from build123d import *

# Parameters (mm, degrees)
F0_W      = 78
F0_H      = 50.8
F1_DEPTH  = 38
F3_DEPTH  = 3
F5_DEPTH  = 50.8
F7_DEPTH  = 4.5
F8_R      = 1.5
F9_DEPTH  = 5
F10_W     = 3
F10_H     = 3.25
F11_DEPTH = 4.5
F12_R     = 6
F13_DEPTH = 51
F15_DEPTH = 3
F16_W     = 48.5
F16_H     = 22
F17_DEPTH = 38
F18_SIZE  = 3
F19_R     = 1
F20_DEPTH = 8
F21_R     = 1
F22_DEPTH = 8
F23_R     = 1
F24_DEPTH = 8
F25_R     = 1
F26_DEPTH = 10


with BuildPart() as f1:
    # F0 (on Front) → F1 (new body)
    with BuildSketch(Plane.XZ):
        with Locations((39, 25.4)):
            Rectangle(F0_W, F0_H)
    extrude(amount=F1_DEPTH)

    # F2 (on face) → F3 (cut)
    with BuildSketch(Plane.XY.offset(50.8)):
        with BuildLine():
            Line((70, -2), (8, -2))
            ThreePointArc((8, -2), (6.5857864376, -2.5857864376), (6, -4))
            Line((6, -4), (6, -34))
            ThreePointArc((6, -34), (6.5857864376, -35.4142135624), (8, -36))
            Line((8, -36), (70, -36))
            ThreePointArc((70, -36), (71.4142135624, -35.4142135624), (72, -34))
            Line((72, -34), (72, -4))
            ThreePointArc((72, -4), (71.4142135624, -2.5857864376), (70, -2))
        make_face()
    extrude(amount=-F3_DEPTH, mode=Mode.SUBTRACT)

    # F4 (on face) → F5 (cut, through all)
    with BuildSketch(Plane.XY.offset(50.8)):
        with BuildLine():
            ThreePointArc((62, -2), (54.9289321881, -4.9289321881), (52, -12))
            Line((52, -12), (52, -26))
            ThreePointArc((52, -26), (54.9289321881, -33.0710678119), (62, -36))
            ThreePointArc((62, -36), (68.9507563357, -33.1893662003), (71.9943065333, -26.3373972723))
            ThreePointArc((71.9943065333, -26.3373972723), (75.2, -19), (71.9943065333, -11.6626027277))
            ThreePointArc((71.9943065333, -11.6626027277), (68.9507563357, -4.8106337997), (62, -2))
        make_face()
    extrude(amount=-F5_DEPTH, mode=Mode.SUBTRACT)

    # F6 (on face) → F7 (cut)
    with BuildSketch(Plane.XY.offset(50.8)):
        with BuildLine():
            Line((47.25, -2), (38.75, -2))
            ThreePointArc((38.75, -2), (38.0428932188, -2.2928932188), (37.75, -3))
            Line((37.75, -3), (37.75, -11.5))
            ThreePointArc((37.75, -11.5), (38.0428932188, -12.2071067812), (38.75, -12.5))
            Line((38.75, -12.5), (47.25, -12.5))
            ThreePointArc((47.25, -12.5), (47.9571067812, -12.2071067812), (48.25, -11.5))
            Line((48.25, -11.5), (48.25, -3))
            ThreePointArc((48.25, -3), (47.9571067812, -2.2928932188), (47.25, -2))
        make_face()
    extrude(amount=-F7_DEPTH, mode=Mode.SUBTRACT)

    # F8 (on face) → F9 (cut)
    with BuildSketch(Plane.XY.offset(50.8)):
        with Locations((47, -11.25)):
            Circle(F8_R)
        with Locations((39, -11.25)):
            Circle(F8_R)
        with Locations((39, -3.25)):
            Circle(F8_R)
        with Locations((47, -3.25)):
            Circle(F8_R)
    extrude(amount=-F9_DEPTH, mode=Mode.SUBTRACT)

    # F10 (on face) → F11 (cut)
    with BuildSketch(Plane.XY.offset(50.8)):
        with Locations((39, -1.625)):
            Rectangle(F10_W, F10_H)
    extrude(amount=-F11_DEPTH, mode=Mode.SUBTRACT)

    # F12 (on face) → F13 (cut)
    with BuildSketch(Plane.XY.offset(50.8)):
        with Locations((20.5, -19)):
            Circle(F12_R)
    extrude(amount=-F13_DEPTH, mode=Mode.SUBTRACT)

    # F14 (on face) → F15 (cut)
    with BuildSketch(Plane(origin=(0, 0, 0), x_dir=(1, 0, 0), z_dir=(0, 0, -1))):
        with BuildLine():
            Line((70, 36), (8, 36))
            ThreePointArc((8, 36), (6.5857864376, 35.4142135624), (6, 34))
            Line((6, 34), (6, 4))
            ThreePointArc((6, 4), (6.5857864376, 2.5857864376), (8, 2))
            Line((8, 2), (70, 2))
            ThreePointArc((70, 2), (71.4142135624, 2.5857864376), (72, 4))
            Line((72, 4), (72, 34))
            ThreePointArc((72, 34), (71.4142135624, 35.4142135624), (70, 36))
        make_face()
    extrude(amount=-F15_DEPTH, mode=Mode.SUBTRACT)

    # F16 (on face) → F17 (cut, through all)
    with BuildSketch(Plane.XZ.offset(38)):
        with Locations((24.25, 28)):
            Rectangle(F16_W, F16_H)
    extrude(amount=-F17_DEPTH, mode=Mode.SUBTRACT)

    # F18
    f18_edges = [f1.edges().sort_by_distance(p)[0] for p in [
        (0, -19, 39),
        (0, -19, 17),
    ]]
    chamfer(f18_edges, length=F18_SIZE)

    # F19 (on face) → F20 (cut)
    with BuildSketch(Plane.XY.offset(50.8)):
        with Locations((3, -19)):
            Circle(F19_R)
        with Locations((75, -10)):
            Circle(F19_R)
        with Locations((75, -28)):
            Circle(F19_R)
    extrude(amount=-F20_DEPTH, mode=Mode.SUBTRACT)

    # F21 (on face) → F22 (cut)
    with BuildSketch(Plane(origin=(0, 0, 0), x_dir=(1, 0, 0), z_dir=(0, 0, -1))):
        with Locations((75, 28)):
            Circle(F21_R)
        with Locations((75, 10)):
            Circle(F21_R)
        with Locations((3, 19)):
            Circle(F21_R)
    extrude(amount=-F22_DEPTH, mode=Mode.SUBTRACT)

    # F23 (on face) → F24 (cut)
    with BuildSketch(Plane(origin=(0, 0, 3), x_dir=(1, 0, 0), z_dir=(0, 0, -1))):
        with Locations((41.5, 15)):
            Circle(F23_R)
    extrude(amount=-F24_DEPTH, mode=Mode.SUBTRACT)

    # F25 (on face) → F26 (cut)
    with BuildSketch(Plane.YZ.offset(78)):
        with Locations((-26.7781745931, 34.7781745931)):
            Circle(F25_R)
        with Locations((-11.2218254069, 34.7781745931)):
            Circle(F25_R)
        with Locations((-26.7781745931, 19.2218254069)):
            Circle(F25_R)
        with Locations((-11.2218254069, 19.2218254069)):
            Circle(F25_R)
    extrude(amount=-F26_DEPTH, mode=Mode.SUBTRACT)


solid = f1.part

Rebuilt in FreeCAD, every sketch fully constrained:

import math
import FreeCAD as App
import Part
import Sketcher
from FreeCAD import Vector
Q = App.Units.Quantity


def edges_at(feature, points):
    """Names of the edges that pass closest to the given points."""
    edges = feature.Shape.Edges
    near = lambda p: min(range(len(edges)), key=lambda i: edges[i].distToShape(Part.Vertex(*p))[0])
    return sorted({f"Edge{near(p) + 1}" for p in points})


def add_polygon(sketch, points):
    """Adds a closed chain of lines whose ends are joined by coincident constraints."""
    first, n = sketch.GeometryCount, len(points)
    for a, b in zip(points, points[1:] + points[:1]):
        sketch.addGeometry(Part.LineSegment(App.Vector(*a, 0), App.Vector(*b, 0)), False)
    for i in range(n):
        sketch.addConstraint(Sketcher.Constraint("Coincident", first + i, 2, first + (i + 1) % n, 1))

doc = App.newDocument("Part")
params = doc.addObject("Spreadsheet::Sheet", "Params")
for row, (alias, value) in enumerate([
    ("sketch1_width", "78 mm"),
    ("sketch1_height", "50.8 mm"),
    ("pad1_length", "38 mm"),
    ("sketch2_radius", "2 mm"),
    ("sketch2_width", "62 mm"),
    ("sketch2_height", "30 mm"),
    ("pocket1_length", "3 mm"),
    ("sketch3_radius", "10 mm"),
    ("sketch3_height", "14 mm"),
    ("sketch4_radius", "1 mm"),
    ("sketch4_width", "8.5 mm"),
    ("pocket3_length", "4.5 mm"),
    ("sketch5_diameter", "3 mm"),
    ("pocket4_length", "5 mm"),
    ("sketch6_width", "3 mm"),
    ("sketch6_height", "3.25 mm"),
    ("pocket5_length", "4.5 mm"),
    ("sketch7_diameter", "12 mm"),
    ("pocket6_length", "51 mm"),
    ("sketch8_radius", "2 mm"),
    ("sketch8_width", "62 mm"),
    ("sketch8_height", "30 mm"),
    ("pocket7_length", "3 mm"),
    ("sketch9_height", "22 mm"),
    ("sketch9_width", "48.5 mm"),
    ("chamfer_size", "3 mm"),
    ("sketch10_diameter", "2 mm"),
    ("pocket9_length", "8 mm"),
    ("sketch11_diameter", "2 mm"),
    ("pocket10_length", "8 mm"),
    ("sketch12_diameter", "2 mm"),
    ("pocket11_length", "8 mm"),
    ("sketch13_diameter", "2 mm"),
    ("pocket12_length", "10 mm"),
], start=1):
    params.set(f"A{row}", alias)
    params.set(f"B{row}", "=" + value)
    params.setAlias(f"B{row}", alias)

body = doc.addObject("PartDesign::Body", "Body")

# Sketch on XZ plane
sketch1 = body.newObject("Sketcher::SketchObject", "Sketch")
sketch1.AttachmentSupport = (doc.getObject("XZ_Plane"), [""])
sketch1.MapMode = "FlatFace"
add_polygon(sketch1, [(0, 51), (0, 0), (78, 0), (78, 51)])  # lines 0-3
sketch1.addConstraint([
    Sketcher.Constraint("Vertical", 0),
    Sketcher.Constraint("Horizontal", 1),
    Sketcher.Constraint("Vertical", 2),
    Sketcher.Constraint("Horizontal", 3),
    Sketcher.Constraint("Coincident", 0, 2, -1, 1),
    Sketcher.Constraint("DistanceX", 1, 1, 1, 2, Q("78 mm")),
    Sketcher.Constraint("DistanceY", 0, 2, 0, 1, Q("50.8 mm")),
])
sketch1.setExpression("Constraints[9]", "Params.sketch1_width")
sketch1.setExpression("Constraints[10]", "Params.sketch1_height")
pad1 = body.newObject("PartDesign::Pad", "Pad")
pad1.Profile = sketch1
pad1.setExpression("Length", "Params.pad1_length")

# Sketch on XY plane
sketch2 = body.newObject("Sketcher::SketchObject", "Sketch001")
sketch2.AttachmentSupport = (doc.getObject("XY_Plane"), [""])
sketch2.MapMode = "FlatFace"
sketch2.AttachmentOffset = App.Placement(Vector(0, 0, 50.8), App.Rotation())
sketch2.addGeometry([
    Part.LineSegment(Vector(70, -2, 0), Vector(8, -2, 0)),  # 0
    Part.ArcOfCircle(Part.Circle(Vector(8, -4, 0), Vector(0, 0, 1), 2), math.radians(90), math.radians(180)),  # 1
    Part.LineSegment(Vector(6, -4, 0), Vector(6, -34, 0)),  # 2
    Part.ArcOfCircle(Part.Circle(Vector(8, -34, 0), Vector(0, 0, 1), 2), math.radians(180), math.radians(270)),  # 3
    Part.LineSegment(Vector(8, -36, 0), Vector(70, -36, 0)),  # 4
    Part.ArcOfCircle(Part.Circle(Vector(70, -34, 0), Vector(0, 0, 1), 2), math.radians(-90), math.radians(0)),  # 5
    Part.LineSegment(Vector(72, -34, 0), Vector(72, -4, 0)),  # 6
    Part.ArcOfCircle(Part.Circle(Vector(70, -4, 0), Vector(0, 0, 1), 2), math.radians(0), math.radians(90)),  # 7
], False)
sketch2.addConstraint([
    Sketcher.Constraint("Tangent", 0, 2, 1, 1),
    Sketcher.Constraint("Tangent", 1, 2, 2, 1),
    Sketcher.Constraint("Tangent", 2, 2, 3, 1),
    Sketcher.Constraint("Tangent", 3, 2, 4, 1),
    Sketcher.Constraint("Tangent", 4, 2, 5, 1),
    Sketcher.Constraint("Tangent", 5, 2, 6, 1),
    Sketcher.Constraint("Tangent", 6, 2, 7, 1),
    Sketcher.Constraint("Tangent", 7, 2, 0, 1),
    Sketcher.Constraint("Horizontal", 0),
    Sketcher.Constraint("Vertical", 2),
    Sketcher.Constraint("Horizontal", 4),
    Sketcher.Constraint("Vertical", 6),
    Sketcher.Constraint("Equal", 1, 3),
    Sketcher.Constraint("Equal", 3, 5),
    Sketcher.Constraint("Equal", 5, 7),
    Sketcher.Constraint("Radius", 1, Q("2 mm")),
    Sketcher.Constraint("DistanceX", 0, 2, 0, 1, Q("62 mm")),
    Sketcher.Constraint("DistanceY", 2, 2, 2, 1, Q("30 mm")),
    Sketcher.Constraint("DistanceX", -1, 1, 1, 3, Q("8 mm")),
    Sketcher.Constraint("DistanceY", 1, 3, -1, 1, Q("4 mm")),
])
sketch2.setExpression("Constraints[15]", "Params.sketch2_radius")
sketch2.setExpression("Constraints[16]", "Params.sketch2_width")
sketch2.setExpression("Constraints[17]", "Params.sketch2_height")
pocket1 = body.newObject("PartDesign::Pocket", "Pocket")
pocket1.Profile = sketch2
pocket1.setExpression("Length", "Params.pocket1_length")

# Sketch on XY plane
sketch3 = body.newObject("Sketcher::SketchObject", "Sketch002")
sketch3.AttachmentSupport = (doc.getObject("XY_Plane"), [""])
sketch3.MapMode = "FlatFace"
sketch3.AttachmentOffset = App.Placement(Vector(0, 0, 50.8), App.Rotation())
sketch3.addGeometry([
    Part.ArcOfCircle(Part.Circle(Vector(62, -12, 0), Vector(0, 0, 1), 10), math.radians(90), math.radians(180)),  # 0
    Part.LineSegment(Vector(52, -12, 0), Vector(52, -26, 0)),  # 1
    Part.ArcOfCircle(Part.Circle(Vector(62, -26, 0), Vector(0, 0, 1), 10), math.radians(180), math.radians(270)),  # 2
    Part.ArcOfCircle(Part.Circle(Vector(62, -26, 0), Vector(0, 0, 1), 10), math.radians(-90), math.radians(-2)),  # 3
    Part.ArcOfCircle(Part.Circle(Vector(65, -19, 0), Vector(0, 0, 1), 10), math.radians(-47), math.radians(47)),  # 4
    Part.ArcOfCircle(Part.Circle(Vector(62, -12, 0), Vector(0, 0, 1), 10), math.radians(2), math.radians(90)),  # 5
], False)
sketch3.addConstraint([
    Sketcher.Constraint("Tangent", 0, 2, 1, 1),
    Sketcher.Constraint("Tangent", 1, 2, 2, 1),
    Sketcher.Constraint("Tangent", 2, 2, 3, 1),
    Sketcher.Constraint("Coincident", 3, 2, 4, 1),
    Sketcher.Constraint("Coincident", 4, 2, 5, 1),
    Sketcher.Constraint("Tangent", 5, 2, 0, 1),
    Sketcher.Constraint("Vertical", 1),
    Sketcher.Constraint("Equal", 0, 2),
    Sketcher.Constraint("Equal", 2, 3),
    Sketcher.Constraint("Equal", 3, 4),
    Sketcher.Constraint("Equal", 4, 5),
    Sketcher.Constraint("Vertical", 5, 3, 2, 2),
    Sketcher.Constraint("Vertical", 3, 2, 4, 2),
    Sketcher.Constraint("Vertical", 2, 2, 5, 2),
    Sketcher.Constraint("Radius", 0, Q("10 mm")),
    Sketcher.Constraint("DistanceY", 1, 2, 1, 1, Q("14 mm")),
    Sketcher.Constraint("DistanceX", -1, 1, 0, 3, Q("62 mm")),
    Sketcher.Constraint("DistanceY", 0, 3, -1, 1, Q("12 mm")),
    Sketcher.Constraint("DistanceX", -1, 1, 4, 3, Q("65.2 mm")),
])
sketch3.setExpression("Constraints[14]", "Params.sketch3_radius")
sketch3.setExpression("Constraints[15]", "Params.sketch3_height")
pocket2 = body.newObject("PartDesign::Pocket", "Pocket001")
pocket2.Profile = sketch3
pocket2.Type = "ThroughAll"

# Sketch on XY plane
sketch4 = body.newObject("Sketcher::SketchObject", "Sketch003")
sketch4.AttachmentSupport = (doc.getObject("XY_Plane"), [""])
sketch4.MapMode = "FlatFace"
sketch4.AttachmentOffset = App.Placement(Vector(0, 0, 50.8), App.Rotation())
sketch4.addGeometry([
    Part.LineSegment(Vector(47.2, -2, 0), Vector(38.8, -2, 0)),  # 0
    Part.ArcOfCircle(Part.Circle(Vector(38.8, -3, 0), Vector(0, 0, 1), 1), math.radians(90), math.radians(180)),  # 1
    Part.LineSegment(Vector(37.8, -3, 0), Vector(37.8, -11.5, 0)),  # 2
    Part.ArcOfCircle(Part.Circle(Vector(38.8, -11.5, 0), Vector(0, 0, 1), 1), math.radians(180), math.radians(270)),  # 3
    Part.LineSegment(Vector(38.8, -12.5, 0), Vector(47.2, -12.5, 0)),  # 4
    Part.ArcOfCircle(Part.Circle(Vector(47.2, -11.5, 0), Vector(0, 0, 1), 1), math.radians(-90), math.radians(0)),  # 5
    Part.LineSegment(Vector(48.2, -11.5, 0), Vector(48.2, -3, 0)),  # 6
    Part.ArcOfCircle(Part.Circle(Vector(47.2, -3, 0), Vector(0, 0, 1), 1), math.radians(0), math.radians(90)),  # 7
], False)
sketch4.addConstraint([
    Sketcher.Constraint("Tangent", 0, 2, 1, 1),
    Sketcher.Constraint("Tangent", 1, 2, 2, 1),
    Sketcher.Constraint("Tangent", 2, 2, 3, 1),
    Sketcher.Constraint("Tangent", 3, 2, 4, 1),
    Sketcher.Constraint("Tangent", 4, 2, 5, 1),
    Sketcher.Constraint("Tangent", 5, 2, 6, 1),
    Sketcher.Constraint("Tangent", 6, 2, 7, 1),
    Sketcher.Constraint("Tangent", 7, 2, 0, 1),
    Sketcher.Constraint("Horizontal", 0),
    Sketcher.Constraint("Vertical", 2),
    Sketcher.Constraint("Horizontal", 4),
    Sketcher.Constraint("Vertical", 6),
    Sketcher.Constraint("Equal", 1, 3),
    Sketcher.Constraint("Equal", 3, 5),
    Sketcher.Constraint("Equal", 5, 7),
    Sketcher.Constraint("Equal", 4, 2),
    Sketcher.Constraint("Radius", 1, Q("1 mm")),
    Sketcher.Constraint("DistanceX", 0, 2, 0, 1, Q("8.5 mm")),
    Sketcher.Constraint("DistanceY", 1, 3, -1, 1, Q("3 mm")),
    Sketcher.Constraint("DistanceX", -1, 1, 1, 3, Q("38.75 mm")),
])
sketch4.setExpression("Constraints[16]", "Params.sketch4_radius")
sketch4.setExpression("Constraints[17]", "Params.sketch4_width")
pocket3 = body.newObject("PartDesign::Pocket", "Pocket002")
pocket3.Profile = sketch4
pocket3.setExpression("Length", "Params.pocket3_length")

# Sketch on XY plane
sketch5 = body.newObject("Sketcher::SketchObject", "Sketch004")
sketch5.AttachmentSupport = (doc.getObject("XY_Plane"), [""])
sketch5.MapMode = "FlatFace"
sketch5.AttachmentOffset = App.Placement(Vector(0, 0, 50.8), App.Rotation())
sketch5.addGeometry([
    Part.Circle(Vector(47, -11.2, 0), Vector(0, 0, 1), 1.5),
    Part.Circle(Vector(39, -11.2, 0), Vector(0, 0, 1), 1.5),
    Part.Circle(Vector(39, -3.2, 0), Vector(0, 0, 1), 1.5),
    Part.Circle(Vector(47, -3.2, 0), Vector(0, 0, 1), 1.5),
], False)
sketch5.addConstraint([
    Sketcher.Constraint("Equal", 0, 1),
    Sketcher.Constraint("Equal", 1, 2),
    Sketcher.Constraint("Equal", 2, 3),
    Sketcher.Constraint("Horizontal", 0, 3, 1, 3),
    Sketcher.Constraint("Horizontal", 2, 3, 3, 3),
    Sketcher.Constraint("Vertical", 1, 3, 2, 3),
    Sketcher.Constraint("Vertical", 0, 3, 3, 3),
    Sketcher.Constraint("Diameter", 0, Q("3 mm")),
    Sketcher.Constraint("DistanceX", -1, 1, 0, 3, Q("47 mm")),
    Sketcher.Constraint("DistanceX", -1, 1, 1, 3, Q("39 mm")),
    Sketcher.Constraint("DistanceY", 1, 3, 2, 3, Q("8 mm")),
    Sketcher.Constraint("DistanceY", 0, 3, -1, 1, Q("11.25 mm")),
])
sketch5.setExpression("Constraints[7]", "Params.sketch5_diameter")
pocket4 = body.newObject("PartDesign::Pocket", "Pocket003")
pocket4.Profile = sketch5
pocket4.setExpression("Length", "Params.pocket4_length")

# Sketch on XY plane
sketch6 = body.newObject("Sketcher::SketchObject", "Sketch005")
sketch6.AttachmentSupport = (doc.getObject("XY_Plane"), [""])
sketch6.MapMode = "FlatFace"
sketch6.AttachmentOffset = App.Placement(Vector(0, 0, 50.8), App.Rotation())
add_polygon(sketch6, [(37.5, 0), (37.5, -3.2), (40.5, -3.2), (40.5, 0)])  # lines 0-3
sketch6.addConstraint([
    Sketcher.Constraint("Vertical", 0),
    Sketcher.Constraint("Horizontal", 1),
    Sketcher.Constraint("Vertical", 2),
    Sketcher.Constraint("Horizontal", 3),
    Sketcher.Constraint("PointOnObject", 2, 2, -1),
    Sketcher.Constraint("DistanceX", 1, 1, 1, 2, Q("3 mm")),
    Sketcher.Constraint("DistanceY", 0, 2, 0, 1, Q("3.25 mm")),
    Sketcher.Constraint("DistanceX", -1, 1, 0, 2, Q("37.5 mm")),
])
sketch6.setExpression("Constraints[9]", "Params.sketch6_width")
sketch6.setExpression("Constraints[10]", "Params.sketch6_height")
pocket5 = body.newObject("PartDesign::Pocket", "Pocket004")
pocket5.Profile = sketch6
pocket5.setExpression("Length", "Params.pocket5_length")

# Sketch on XY plane
sketch7 = body.newObject("Sketcher::SketchObject", "Sketch006")
sketch7.AttachmentSupport = (doc.getObject("XY_Plane"), [""])
sketch7.MapMode = "FlatFace"
sketch7.AttachmentOffset = App.Placement(Vector(0, 0, 50.8), App.Rotation())
sketch7.addGeometry(Part.Circle(Vector(20, -19, 0), Vector(0, 0, 1), 6), False)
sketch7.addConstraint([
    Sketcher.Constraint("Diameter", 0, Q("12 mm")),
    Sketcher.Constraint("DistanceY", 0, 3, -1, 1, Q("19 mm")),
    Sketcher.Constraint("DistanceX", -1, 1, 0, 3, Q("20.5 mm")),
])
sketch7.setExpression("Constraints[0]", "Params.sketch7_diameter")
pocket6 = body.newObject("PartDesign::Pocket", "Pocket005")
pocket6.Profile = sketch7
pocket6.setExpression("Length", "Params.pocket6_length")

# Sketch on XY plane
sketch8 = body.newObject("Sketcher::SketchObject", "Sketch007")
sketch8.AttachmentSupport = (doc.getObject("XY_Plane"), [""])
sketch8.MapMode = "FlatFace"
sketch8.addGeometry([
    Part.LineSegment(Vector(70, -36, 0), Vector(8, -36, 0)),  # 0
    Part.ArcOfCircle(Part.Circle(Vector(8, -34, 0), Vector(0, 0, 1), 2), math.radians(180), math.radians(270)),  # 1
    Part.LineSegment(Vector(6, -34, 0), Vector(6, -4, 0)),  # 2
    Part.ArcOfCircle(Part.Circle(Vector(8, -4, 0), Vector(0, 0, 1), 2), math.radians(90), math.radians(180)),  # 3
    Part.LineSegment(Vector(8, -2, 0), Vector(70, -2, 0)),  # 4
    Part.ArcOfCircle(Part.Circle(Vector(70, -4, 0), Vector(0, 0, 1), 2), math.radians(0), math.radians(90)),  # 5
    Part.LineSegment(Vector(72, -4, 0), Vector(72, -34, 0)),  # 6
    Part.ArcOfCircle(Part.Circle(Vector(70, -34, 0), Vector(0, 0, 1), 2), math.radians(-90), math.radians(0)),  # 7
], False)
sketch8.addConstraint([
    Sketcher.Constraint("Tangent", 0, 2, 1, 2),
    Sketcher.Constraint("Tangent", 1, 1, 2, 1),
    Sketcher.Constraint("Tangent", 2, 2, 3, 2),
    Sketcher.Constraint("Tangent", 3, 1, 4, 1),
    Sketcher.Constraint("Tangent", 4, 2, 5, 2),
    Sketcher.Constraint("Tangent", 5, 1, 6, 1),
    Sketcher.Constraint("Tangent", 6, 2, 7, 2),
    Sketcher.Constraint("Tangent", 7, 1, 0, 1),
    Sketcher.Constraint("Horizontal", 0),
    Sketcher.Constraint("Vertical", 2),
    Sketcher.Constraint("Horizontal", 4),
    Sketcher.Constraint("Vertical", 6),
    Sketcher.Constraint("Equal", 1, 3),
    Sketcher.Constraint("Equal", 3, 5),
    Sketcher.Constraint("Equal", 5, 7),
    Sketcher.Constraint("Radius", 1, Q("2 mm")),
    Sketcher.Constraint("DistanceX", 0, 2, 0, 1, Q("62 mm")),
    Sketcher.Constraint("DistanceY", 2, 1, 2, 2, Q("30 mm")),
    Sketcher.Constraint("DistanceX", -1, 1, 1, 3, Q("8 mm")),
    Sketcher.Constraint("DistanceY", 1, 3, -1, 1, Q("34 mm")),
])
sketch8.setExpression("Constraints[15]", "Params.sketch8_radius")
sketch8.setExpression("Constraints[16]", "Params.sketch8_width")
sketch8.setExpression("Constraints[17]", "Params.sketch8_height")
pocket7 = body.newObject("PartDesign::Pocket", "Pocket006")
pocket7.Profile = sketch8
pocket7.setExpression("Length", "Params.pocket7_length")
pocket7.Reversed = True

# Sketch on XZ plane
sketch9 = body.newObject("Sketcher::SketchObject", "Sketch008")
sketch9.AttachmentSupport = (doc.getObject("XZ_Plane"), [""])
sketch9.MapMode = "FlatFace"
sketch9.AttachmentOffset = App.Placement(Vector(0, 0, 38), App.Rotation())
add_polygon(sketch9, [(0, 39), (0, 17), (48, 17), (48, 39)])  # lines 0-3
sketch9.addConstraint([
    Sketcher.Constraint("Vertical", 0),
    Sketcher.Constraint("Horizontal", 1),
    Sketcher.Constraint("Vertical", 2),
    Sketcher.Constraint("Horizontal", 3),
    Sketcher.Constraint("PointOnObject", 0, 2, -2),
    Sketcher.Constraint("DistanceY", 0, 2, 0, 1, Q("22 mm")),
    Sketcher.Constraint("DistanceX", 1, 1, 1, 2, Q("48.5 mm")),
    Sketcher.Constraint("DistanceY", -1, 1, 0, 2, Q("17 mm")),
])
sketch9.setExpression("Constraints[9]", "Params.sketch9_height")
sketch9.setExpression("Constraints[10]", "Params.sketch9_width")
pocket8 = body.newObject("PartDesign::Pocket", "Pocket007")
pocket8.Profile = sketch9
pocket8.Type = "ThroughAll"
doc.recompute()

chamfer = body.newObject("PartDesign::Chamfer", "Chamfer")
chamfer.Base = (pocket8, edges_at(pocket8, [(0, -19, 39), (0, -19, 17)]))
chamfer.setExpression("Size", "Params.chamfer_size")

# Sketch on XY plane
sketch10 = body.newObject("Sketcher::SketchObject", "Sketch009")
sketch10.AttachmentSupport = (doc.getObject("XY_Plane"), [""])
sketch10.MapMode = "FlatFace"
sketch10.AttachmentOffset = App.Placement(Vector(0, 0, 50.8), App.Rotation())
sketch10.addGeometry([
    Part.Circle(Vector(3, -19, 0), Vector(0, 0, 1), 1),
    Part.Circle(Vector(75, -10, 0), Vector(0, 0, 1), 1),
    Part.Circle(Vector(75, -28, 0), Vector(0, 0, 1), 1),
], False)
sketch10.addConstraint([
    Sketcher.Constraint("Equal", 0, 1),
    Sketcher.Constraint("Equal", 1, 2),
    Sketcher.Constraint("Vertical", 1, 3, 2, 3),
    Sketcher.Constraint("Diameter", 0, Q("2 mm")),
    Sketcher.Constraint("DistanceX", -1, 1, 0, 3, Q("3 mm")),
    Sketcher.Constraint("DistanceY", 0, 3, -1, 1, Q("19 mm")),
    Sketcher.Constraint("DistanceX", -1, 1, 1, 3, Q("75 mm")),
    Sketcher.Constraint("DistanceY", 1, 3, -1, 1, Q("10 mm")),
    Sketcher.Constraint("DistanceY", 2, 3, -1, 1, Q("28 mm")),
])
sketch10.setExpression("Constraints[3]", "Params.sketch10_diameter")
pocket9 = body.newObject("PartDesign::Pocket", "Pocket008")
pocket9.Profile = sketch10
pocket9.setExpression("Length", "Params.pocket9_length")

# Sketch on XY plane
sketch11 = body.newObject("Sketcher::SketchObject", "Sketch010")
sketch11.AttachmentSupport = (doc.getObject("XY_Plane"), [""])
sketch11.MapMode = "FlatFace"
sketch11.addGeometry([
    Part.Circle(Vector(75, -28, 0), Vector(0, 0, 1), 1),
    Part.Circle(Vector(75, -10, 0), Vector(0, 0, 1), 1),
    Part.Circle(Vector(3, -19, 0), Vector(0, 0, 1), 1),
], False)
sketch11.addConstraint([
    Sketcher.Constraint("Equal", 0, 1),
    Sketcher.Constraint("Equal", 1, 2),
    Sketcher.Constraint("Vertical", 0, 3, 1, 3),
    Sketcher.Constraint("Diameter", 0, Q("2 mm")),
    Sketcher.Constraint("DistanceX", -1, 1, 0, 3, Q("75 mm")),
    Sketcher.Constraint("DistanceY", 0, 3, -1, 1, Q("28 mm")),
    Sketcher.Constraint("DistanceY", 1, 3, -1, 1, Q("10 mm")),
    Sketcher.Constraint("DistanceX", -1, 1, 2, 3, Q("3 mm")),
    Sketcher.Constraint("DistanceY", 2, 3, -1, 1, Q("19 mm")),
])
sketch11.setExpression("Constraints[3]", "Params.sketch11_diameter")
pocket10 = body.newObject("PartDesign::Pocket", "Pocket009")
pocket10.Profile = sketch11
pocket10.setExpression("Length", "Params.pocket10_length")
pocket10.Reversed = True

# Sketch on XY plane
sketch12 = body.newObject("Sketcher::SketchObject", "Sketch011")
sketch12.AttachmentSupport = (doc.getObject("XY_Plane"), [""])
sketch12.MapMode = "FlatFace"
sketch12.AttachmentOffset = App.Placement(Vector(0, 0, 3), App.Rotation())
sketch12.addGeometry(Part.Circle(Vector(41.5, -15, 0), Vector(0, 0, 1), 1), False)
sketch12.addConstraint([
    Sketcher.Constraint("Diameter", 0, Q("2 mm")),
    Sketcher.Constraint("DistanceY", 0, 3, -1, 1, Q("15 mm")),
    Sketcher.Constraint("DistanceX", -1, 1, 0, 3, Q("41.5 mm")),
])
sketch12.setExpression("Constraints[0]", "Params.sketch12_diameter")
pocket11 = body.newObject("PartDesign::Pocket", "Pocket010")
pocket11.Profile = sketch12
pocket11.setExpression("Length", "Params.pocket11_length")
pocket11.Reversed = True

# Sketch on YZ plane
sketch13 = body.newObject("Sketcher::SketchObject", "Sketch012")
sketch13.AttachmentSupport = (doc.getObject("YZ_Plane"), [""])
sketch13.MapMode = "FlatFace"
sketch13.AttachmentOffset = App.Placement(Vector(0, 0, 78), App.Rotation())
sketch13.addGeometry([
    Part.Circle(Vector(-26.8, 34.8, 0), Vector(0, 0, 1), 1),
    Part.Circle(Vector(-11.2, 34.8, 0), Vector(0, 0, 1), 1),
    Part.Circle(Vector(-26.8, 19.2, 0), Vector(0, 0, 1), 1),
    Part.Circle(Vector(-11.2, 19.2, 0), Vector(0, 0, 1), 1),
], False)
sketch13.addConstraint([
    Sketcher.Constraint("Equal", 0, 1),
    Sketcher.Constraint("Equal", 1, 2),
    Sketcher.Constraint("Equal", 2, 3),
    Sketcher.Constraint("Horizontal", 0, 3, 1, 3),
    Sketcher.Constraint("Horizontal", 2, 3, 3, 3),
    Sketcher.Constraint("Vertical", 0, 3, 2, 3),
    Sketcher.Constraint("Vertical", 1, 3, 3, 3),
    Sketcher.Constraint("Diameter", 0, Q("2 mm")),
    Sketcher.Constraint("DistanceX", 0, 3, 1, 3, Q("15.556349 mm")),
    Sketcher.Constraint("DistanceY", 2, 3, 0, 3, Q("15.556349 mm")),
    Sketcher.Constraint("DistanceX", 0, 3, -1, 1, Q("26.778175 mm")),
    Sketcher.Constraint("DistanceY", -1, 1, 0, 3, Q("34.778175 mm")),
])
sketch13.setExpression("Constraints[7]", "Params.sketch13_diameter")
pocket12 = body.newObject("PartDesign::Pocket", "Pocket011")
pocket12.Profile = sketch13
pocket12.setExpression("Length", "Params.pocket12_length")

doc.recompute()
